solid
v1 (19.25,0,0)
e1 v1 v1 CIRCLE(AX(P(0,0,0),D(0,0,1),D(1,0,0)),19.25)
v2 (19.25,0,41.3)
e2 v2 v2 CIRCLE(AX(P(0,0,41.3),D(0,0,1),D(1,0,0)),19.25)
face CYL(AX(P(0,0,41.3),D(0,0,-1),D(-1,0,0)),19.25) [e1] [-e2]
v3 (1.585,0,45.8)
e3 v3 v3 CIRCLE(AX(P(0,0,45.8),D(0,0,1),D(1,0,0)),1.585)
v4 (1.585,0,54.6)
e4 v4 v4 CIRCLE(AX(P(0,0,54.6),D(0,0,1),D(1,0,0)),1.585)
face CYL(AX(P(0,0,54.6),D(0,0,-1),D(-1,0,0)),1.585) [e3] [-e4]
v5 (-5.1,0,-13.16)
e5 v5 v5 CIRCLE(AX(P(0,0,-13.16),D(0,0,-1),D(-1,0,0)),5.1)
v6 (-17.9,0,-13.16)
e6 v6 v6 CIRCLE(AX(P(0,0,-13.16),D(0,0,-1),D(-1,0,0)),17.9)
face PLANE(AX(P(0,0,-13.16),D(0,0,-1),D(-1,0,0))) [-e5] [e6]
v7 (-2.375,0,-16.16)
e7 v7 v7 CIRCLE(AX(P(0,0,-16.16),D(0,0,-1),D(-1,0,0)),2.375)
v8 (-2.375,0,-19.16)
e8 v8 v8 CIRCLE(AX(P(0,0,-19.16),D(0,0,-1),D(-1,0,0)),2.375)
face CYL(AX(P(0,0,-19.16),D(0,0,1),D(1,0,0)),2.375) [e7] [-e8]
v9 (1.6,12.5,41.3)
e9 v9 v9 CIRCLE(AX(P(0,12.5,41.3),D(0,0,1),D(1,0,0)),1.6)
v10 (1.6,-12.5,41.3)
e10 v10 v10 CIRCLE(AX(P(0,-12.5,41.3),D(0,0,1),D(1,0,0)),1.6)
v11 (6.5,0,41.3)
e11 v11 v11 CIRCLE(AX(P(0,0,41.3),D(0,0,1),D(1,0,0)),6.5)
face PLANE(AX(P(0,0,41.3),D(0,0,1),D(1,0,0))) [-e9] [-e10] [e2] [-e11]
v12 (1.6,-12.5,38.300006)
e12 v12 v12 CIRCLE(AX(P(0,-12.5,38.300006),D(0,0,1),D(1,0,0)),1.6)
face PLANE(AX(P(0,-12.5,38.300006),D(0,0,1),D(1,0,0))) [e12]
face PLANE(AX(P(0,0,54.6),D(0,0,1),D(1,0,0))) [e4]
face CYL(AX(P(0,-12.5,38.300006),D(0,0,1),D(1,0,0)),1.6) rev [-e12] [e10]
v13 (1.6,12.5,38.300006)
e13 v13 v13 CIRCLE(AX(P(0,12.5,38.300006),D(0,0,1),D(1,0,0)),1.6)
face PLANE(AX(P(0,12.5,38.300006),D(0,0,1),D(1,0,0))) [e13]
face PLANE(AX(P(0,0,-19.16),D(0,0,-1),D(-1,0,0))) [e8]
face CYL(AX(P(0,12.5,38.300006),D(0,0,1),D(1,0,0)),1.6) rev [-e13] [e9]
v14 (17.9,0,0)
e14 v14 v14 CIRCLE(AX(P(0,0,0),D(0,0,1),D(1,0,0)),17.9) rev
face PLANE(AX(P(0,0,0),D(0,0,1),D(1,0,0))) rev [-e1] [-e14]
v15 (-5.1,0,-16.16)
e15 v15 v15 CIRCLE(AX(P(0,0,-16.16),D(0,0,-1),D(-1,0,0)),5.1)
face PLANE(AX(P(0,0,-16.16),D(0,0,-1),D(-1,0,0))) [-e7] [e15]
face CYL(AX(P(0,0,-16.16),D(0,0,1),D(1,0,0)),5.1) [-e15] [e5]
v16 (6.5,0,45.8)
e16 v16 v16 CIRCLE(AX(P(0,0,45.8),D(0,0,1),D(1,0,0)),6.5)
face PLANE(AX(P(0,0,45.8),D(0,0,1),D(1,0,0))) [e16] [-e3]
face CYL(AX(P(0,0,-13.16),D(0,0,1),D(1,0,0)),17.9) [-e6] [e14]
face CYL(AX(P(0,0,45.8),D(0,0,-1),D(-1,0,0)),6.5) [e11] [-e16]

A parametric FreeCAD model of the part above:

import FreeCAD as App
import Part
import Sketcher

V = App.Vector
Q = App.Units.Quantity

doc = App.newDocument("Part")
body = doc.addObject("PartDesign::Body", "Body")

sketch1 = body.newObject("Sketcher::SketchObject", "Sketch")
sketch1.AttachmentSupport = (doc.getObject("XY_Plane"), [""])
sketch1.MapMode = "FlatFace"
sketch1.addGeometry(Part.Circle(V(0, 0, 0), V(0, 0, 1), 19), False)
sketch1.addConstraint(Sketcher.Constraint("Coincident", 0, 3, -1, 1))
sketch1.addConstraint(Sketcher.Constraint("Diameter", 0, Q("38.5 mm")))
pad1 = body.newObject("PartDesign::Pad", "Pad")
pad1.Profile = sketch1
pad1.Length = 41.3

sketch2 = body.newObject("Sketcher::SketchObject", "Sketch001")
sketch2.AttachmentSupport = (doc.getObject("XY_Plane"), [""])
sketch2.MapMode = "FlatFace"
sketch2.AttachmentOffset = App.Placement(V(0, 0, 41.3), App.Rotation())
sketch2.addGeometry(Part.Circle(V(0, 0, 0), V(0, 0, 1), 1.6), False)
sketch2.addConstraint(Sketcher.Constraint("Coincident", 0, 3, -1, 1))
sketch2.addConstraint(Sketcher.Constraint("Diameter", 0, Q("3.17 mm")))
pad2 = body.newObject("PartDesign::Pad", "Pad001")
pad2.Profile = sketch2
pad2.Length = 13.3

sketch3 = body.newObject("Sketcher::SketchObject", "Sketch002")
sketch3.AttachmentSupport = (doc.getObject("XY_Plane"), [""])
sketch3.MapMode = "FlatFace"
sketch3.AttachmentOffset = App.Placement(V(0, 0, 41.3), App.Rotation())
sketch3.addGeometry(Part.Circle(V(0, 0, 0), V(0, 0, 1), 6), False)
sketch3.addConstraint(Sketcher.Constraint("Coincident", 0, 3, -1, 1))
sketch3.addConstraint(Sketcher.Constraint("Diameter", 0, Q("13 mm")))
pad3 = body.newObject("PartDesign::Pad", "Pad002")
pad3.Profile = sketch3
pad3.Length = 4.5

sketch4 = body.newObject("Sketcher::SketchObject", "Sketch003")
sketch4.AttachmentSupport = (doc.getObject("XY_Plane"), [""])
sketch4.MapMode = "FlatFace"
sketch4.addGeometry(Part.Circle(V(0, 0, 0), V(0, 0, 1), 18), False)
sketch4.addConstraint(Sketcher.Constraint("Coincident", 0, 3, -1, 1))
sketch4.addConstraint(Sketcher.Constraint("Diameter", 0, Q("35.8 mm")))
pad4 = body.newObject("PartDesign::Pad", "Pad003")
pad4.Profile = sketch4
pad4.Length = 13.16
pad4.Reversed = True

sketch5 = body.newObject("Sketcher::SketchObject", "Sketch004")
sketch5.AttachmentSupport = (doc.getObject("XY_Plane"), [""])
sketch5.MapMode = "FlatFace"
sketch5.AttachmentOffset = App.Placement(V(0, 0, -13.16), App.Rotation())
sketch5.addGeometry(Part.Circle(V(0, 0, 0), V(0, 0, 1), 5), False)
sketch5.addConstraint(Sketcher.Constraint("Coincident", 0, 3, -1, 1))
sketch5.addConstraint(Sketcher.Constraint("Diameter", 0, Q("10.2 mm")))
pad5 = body.newObject("PartDesign::Pad", "Pad004")
pad5.Profile = sketch5
pad5.Length = 3
pad5.Reversed = True

sketch6 = body.newObject("Sketcher::SketchObject", "Sketch005")
sketch6.AttachmentSupport = (doc.getObject("XY_Plane"), [""])
sketch6.MapMode = "FlatFace"
sketch6.AttachmentOffset = App.Placement(V(0, 0, -16.16), App.Rotation())
sketch6.addGeometry(Part.Circle(V(0, 0, 0), V(0, 0, 1), 2.4), False)
sketch6.addConstraint(Sketcher.Constraint("Coincident", 0, 3, -1, 1))
sketch6.addConstraint(Sketcher.Constraint("Diameter", 0, Q("4.75 mm")))
pad6 = body.newObject("PartDesign::Pad", "Pad005")
pad6.Profile = sketch6
pad6.Length = 3
pad6.Reversed = True

sketch7 = body.newObject("Sketcher::SketchObject", "Sketch006")
sketch7.AttachmentSupport = (doc.getObject("XY_Plane"), [""])
sketch7.MapMode = "FlatFace"
sketch7.AttachmentOffset = App.Placement(V(0, 0, 41.3), App.Rotation())
sketch7.addGeometry(Part.Circle(V(0, 12.5, 0), V(0, 0, 1), 1.6), False)
sketch7.addGeometry(Part.Circle(V(0, -12.5, 0), V(0, 0, 1), 1.6), False)
sketch7.addConstraint(Sketcher.Constraint("Equal", 0, 1))
sketch7.addConstraint(Sketcher.Constraint("Symmetric", 0, 3, 1, 3, -1, 1))
sketch7.addConstraint(Sketcher.Constraint("PointOnObject", 0, 3, -2))
sketch7.addConstraint(Sketcher.Constraint("Diameter", 0, Q("3.2 mm")))
sketch7.addConstraint(Sketcher.Constraint("DistanceY", 1, 3, 0, 3, Q("25 mm")))
pocket1 = body.newObject("PartDesign::Pocket", "Pocket")
pocket1.Profile = sketch7
pocket1.Length = 2.999994

doc.recompute()
